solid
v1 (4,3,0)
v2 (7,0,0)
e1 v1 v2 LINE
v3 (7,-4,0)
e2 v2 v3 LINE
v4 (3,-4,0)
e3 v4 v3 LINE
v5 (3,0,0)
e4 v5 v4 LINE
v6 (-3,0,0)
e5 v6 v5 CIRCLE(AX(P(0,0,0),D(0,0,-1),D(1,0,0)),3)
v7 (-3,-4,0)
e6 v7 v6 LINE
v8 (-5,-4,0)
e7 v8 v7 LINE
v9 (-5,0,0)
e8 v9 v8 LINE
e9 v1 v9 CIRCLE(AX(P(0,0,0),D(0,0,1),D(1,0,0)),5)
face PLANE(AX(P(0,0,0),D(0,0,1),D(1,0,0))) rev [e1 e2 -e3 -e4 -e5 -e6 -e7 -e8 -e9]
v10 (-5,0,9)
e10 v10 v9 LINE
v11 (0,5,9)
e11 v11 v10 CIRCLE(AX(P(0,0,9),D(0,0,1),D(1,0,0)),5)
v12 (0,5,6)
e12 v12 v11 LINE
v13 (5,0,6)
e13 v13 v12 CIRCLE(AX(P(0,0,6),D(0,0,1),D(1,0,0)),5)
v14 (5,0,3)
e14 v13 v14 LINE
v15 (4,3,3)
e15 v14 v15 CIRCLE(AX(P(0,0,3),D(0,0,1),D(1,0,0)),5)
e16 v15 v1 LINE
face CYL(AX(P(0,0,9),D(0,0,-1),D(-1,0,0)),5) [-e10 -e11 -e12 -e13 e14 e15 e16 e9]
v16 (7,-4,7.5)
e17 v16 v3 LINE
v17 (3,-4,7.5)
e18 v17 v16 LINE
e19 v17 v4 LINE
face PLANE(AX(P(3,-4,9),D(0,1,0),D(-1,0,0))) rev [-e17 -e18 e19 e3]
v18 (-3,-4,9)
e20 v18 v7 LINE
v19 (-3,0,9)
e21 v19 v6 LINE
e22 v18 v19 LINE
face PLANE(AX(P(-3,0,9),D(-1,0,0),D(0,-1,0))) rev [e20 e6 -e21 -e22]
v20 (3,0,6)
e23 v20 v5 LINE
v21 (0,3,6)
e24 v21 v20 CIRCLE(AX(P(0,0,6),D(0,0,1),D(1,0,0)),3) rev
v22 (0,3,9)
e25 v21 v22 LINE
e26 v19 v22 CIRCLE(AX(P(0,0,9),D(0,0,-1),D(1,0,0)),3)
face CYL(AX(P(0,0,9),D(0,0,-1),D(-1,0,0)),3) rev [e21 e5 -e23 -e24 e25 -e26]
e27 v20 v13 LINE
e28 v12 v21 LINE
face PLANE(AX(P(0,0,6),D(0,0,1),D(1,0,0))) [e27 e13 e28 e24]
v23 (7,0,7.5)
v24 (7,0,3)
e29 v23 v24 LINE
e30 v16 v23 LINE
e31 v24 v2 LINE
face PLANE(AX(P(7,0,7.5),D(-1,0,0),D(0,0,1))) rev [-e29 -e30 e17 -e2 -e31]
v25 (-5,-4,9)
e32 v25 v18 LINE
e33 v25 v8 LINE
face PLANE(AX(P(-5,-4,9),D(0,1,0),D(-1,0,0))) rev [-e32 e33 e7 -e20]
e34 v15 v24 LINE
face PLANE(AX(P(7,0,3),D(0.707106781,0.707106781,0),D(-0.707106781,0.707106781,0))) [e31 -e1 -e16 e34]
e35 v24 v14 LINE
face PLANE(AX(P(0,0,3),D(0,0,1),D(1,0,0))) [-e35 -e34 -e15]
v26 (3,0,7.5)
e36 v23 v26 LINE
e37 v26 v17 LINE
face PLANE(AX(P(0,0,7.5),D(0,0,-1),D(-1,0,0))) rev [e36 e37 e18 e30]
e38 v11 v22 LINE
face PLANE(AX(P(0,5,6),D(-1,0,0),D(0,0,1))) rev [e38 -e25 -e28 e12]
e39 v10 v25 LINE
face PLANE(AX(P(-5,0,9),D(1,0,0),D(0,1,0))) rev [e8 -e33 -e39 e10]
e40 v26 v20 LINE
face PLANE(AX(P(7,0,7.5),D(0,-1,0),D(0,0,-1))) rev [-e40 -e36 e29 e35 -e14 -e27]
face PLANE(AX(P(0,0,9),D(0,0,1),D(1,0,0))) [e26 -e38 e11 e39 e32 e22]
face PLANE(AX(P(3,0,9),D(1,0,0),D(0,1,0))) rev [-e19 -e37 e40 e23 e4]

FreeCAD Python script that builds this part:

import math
import FreeCAD as App
import Part
import Sketcher
from FreeCAD import Vector
Q = App.Units.Quantity

doc = App.newDocument("Part")
body = doc.addObject("PartDesign::Body", "Body")

sketch1 = doc.addObject("Sketcher::SketchObject", "Sketch")
body.addObject(sketch1)
sketch1.AttachmentSupport = (doc.XY_Plane, [""])
sketch1.MapMode = "FlatFace"
sketch1.addGeometry(Part.LineSegment(Vector(3, 0, 0), Vector(3, -4, 0)), False)
sketch1.addGeometry(Part.LineSegment(Vector(3, -4, 0), Vector(5, -4, 0)), False)
sketch1.addGeometry(Part.LineSegment(Vector(5, -4, 0), Vector(5, 0, 0)), False)
sketch1.addGeometry(Part.ArcOfCircle(Part.Circle(Vector(0, 0, 0), Vector(0, 0, 1), 5), math.radians(0), math.radians(180)), False)
sketch1.addGeometry(Part.LineSegment(Vector(-5, 0, 0), Vector(-5, -4, 0)), False)
sketch1.addGeometry(Part.LineSegment(Vector(-5, -4, 0), Vector(-3, -4, 0)), False)
sketch1.addGeometry(Part.LineSegment(Vector(-3, -4, 0), Vector(-3, 0, 0)), False)
sketch1.addGeometry(Part.ArcOfCircle(Part.Circle(Vector(0, 0, 0), Vector(0, 0, 1), 3), math.radians(0), math.radians(180)), False)
sketch1.addConstraint(Sketcher.Constraint("Coincident", 0, 2, 1, 1))
sketch1.addConstraint(Sketcher.Constraint("Coincident", 1, 2, 2, 1))
sketch1.addConstraint(Sketcher.Constraint("Tangent", 2, 2, 3, 1))
sketch1.addConstraint(Sketcher.Constraint("Tangent", 3, 2, 4, 1))
sketch1.addConstraint(Sketcher.Constraint("Coincident", 4, 2, 5, 1))
sketch1.addConstraint(Sketcher.Constraint("Coincident", 5, 2, 6, 1))
sketch1.addConstraint(Sketcher.Constraint("Tangent", 6, 2, 7, 2))
sketch1.addConstraint(Sketcher.Constraint("Tangent", 7, 1, 0, 1))
sketch1.addConstraint(Sketcher.Constraint("Vertical", 0))
sketch1.addConstraint(Sketcher.Constraint("Horizontal", 1))
sketch1.addConstraint(Sketcher.Constraint("Vertical", 2))
sketch1.addConstraint(Sketcher.Constraint("Vertical", 4))
sketch1.addConstraint(Sketcher.Constraint("Horizontal", 5))
sketch1.addConstraint(Sketcher.Constraint("Vertical", 6))
sketch1.addConstraint(Sketcher.Constraint("Coincident", 3, 3, -1, 1))
sketch1.addConstraint(Sketcher.Constraint("Coincident", 7, 3, -1, 1))
sketch1.addConstraint(Sketcher.Constraint("Horizontal", 1, 2, 4, 2))
sketch1.addConstraint(Sketcher.Constraint("Radius", 3, Q("5 mm")))
sketch1.addConstraint(Sketcher.Constraint("Radius", 7, Q("3 mm")))
sketch1.addConstraint(Sketcher.Constraint("DistanceY", 0, 2, 0, 1, Q("4 mm")))
pad1 = doc.addObject("PartDesign::Pad", "Pad")
body.addObject(pad1)
pad1.Profile = sketch1
pad1.Length = 9

sketch2 = doc.addObject("Sketcher::SketchObject", "Sketch001")
body.addObject(sketch2)
sketch2.AttachmentSupport = (doc.XY_Plane, [""])
sketch2.MapMode = "FlatFace"
sketch2.AttachmentOffset = App.Placement(Vector(0, 0, 9), App.Rotation())
sketch2.addGeometry(Part.LineSegment(Vector(0, 5, 0), Vector(0, -4, 0)), False)
sketch2.addGeometry(Part.LineSegment(Vector(0, -4, 0), Vector(5, -4, 0)), False)
sketch2.addGeometry(Part.LineSegment(Vector(5, -4, 0), Vector(5, 5, 0)), False)
sketch2.addGeometry(Part.LineSegment(Vector(5, 5, 0), Vector(0, 5, 0)), False)
sketch2.addConstraint(Sketcher.Constraint("Coincident", 0, 2, 1, 1))
sketch2.addConstraint(Sketcher.Constraint("Coincident", 1, 2, 2, 1))
sketch2.addConstraint(Sketcher.Constraint("Coincident", 2, 2, 3, 1))
sketch2.addConstraint(Sketcher.Constraint("Coincident", 3, 2, 0, 1))
sketch2.addConstraint(Sketcher.Constraint("Vertical", 0))
sketch2.addConstraint(Sketcher.Constraint("Horizontal", 1))
sketch2.addConstraint(Sketcher.Constraint("Vertical", 2))
sketch2.addConstraint(Sketcher.Constraint("Horizontal", 3))
sketch2.addConstraint(Sketcher.Constraint("PointOnObject", 0, 2, -2))
sketch2.addConstraint(Sketcher.Constraint("DistanceX", 1, 1, 1, 2, Q("5 mm")))
sketch2.addConstraint(Sketcher.Constraint("DistanceY", 0, 2, 0, 1, Q("9 mm")))
sketch2.addConstraint(Sketcher.Constraint("DistanceY", 0, 2, -1, 1, Q("4 mm")))
pocket1 = doc.addObject("PartDesign::Pocket", "Pocket")
body.addObject(pocket1)
pocket1.Profile = sketch2
pocket1.Length = 3
body2 = doc.addObject("PartDesign::Body", "Body001")

sketch3 = doc.addObject("Sketcher::SketchObject", "Sketch002")
body2.addObject(sketch3)
sketch3.AttachmentSupport = (doc.getObject("XY_Plane001"), [""])
sketch3.MapMode = "FlatFace"
sketch3.addGeometry(Part.LineSegment(Vector(7, -4, 0), Vector(5, -4, 0)), False)
sketch3.addGeometry(Part.LineSegment(Vector(5, -4, 0), Vector(5, 0, 0)), False)
sketch3.addGeometry(Part.ArcOfCircle(Part.Circle(Vector(0, 0, 0), Vector(0, 0, 1), 5), math.radians(0), math.radians(37)), False)
sketch3.addGeometry(Part.LineSegment(Vector(4, 3, 0), Vector(7, 0, 0)), False)
sketch3.addGeometry(Part.LineSegment(Vector(7, 0, 0), Vector(7, -4, 0)), False)
sketch3.addConstraint(Sketcher.Constraint("Coincident", 0, 2, 1, 1))
sketch3.addConstraint(Sketcher.Constraint("Tangent", 1, 2, 2, 1))
sketch3.addConstraint(Sketcher.Constraint("Coincident", 2, 2, 3, 1))
sketch3.addConstraint(Sketcher.Constraint("Coincident", 3, 2, 4, 1))
sketch3.addConstraint(Sketcher.Constraint("Coincident", 4, 2, 0, 1))
sketch3.addConstraint(Sketcher.Constraint("Horizontal", 0))
sketch3.addConstraint(Sketcher.Constraint("Vertical", 1))
sketch3.addConstraint(Sketcher.Constraint("Vertical", 4))
sketch3.addConstraint(Sketcher.Constraint("Coincident", 2, 3, -1, 1))
sketch3.addConstraint(Sketcher.Constraint("PointOnObject", 3, 2, -1))
sketch3.addConstraint(Sketcher.Constraint("Radius", 2, Q("5 mm")))
sketch3.addConstraint(Sketcher.Constraint("DistanceX", 0, 2, 0, 1, Q("2 mm")))
sketch3.addConstraint(Sketcher.Constraint("DistanceY", 1, 1, 1, 2, Q("4 mm")))
sketch3.addConstraint(Sketcher.Constraint("Angle", 3, Q("-45 deg")))
pad2 = doc.addObject("PartDesign::Pad", "Pad001")
body2.addObject(pad2)
pad2.Profile = sketch3
pad2.Length = 3
doc.recompute()

boolean = doc.addObject("PartDesign::Boolean", "Boolean")
body.addObject(boolean)
boolean.Type = "Fuse"
boolean.addObjects([body2])

sketch4 = doc.addObject("Sketcher::SketchObject", "Sketch003")
body.addObject(sketch4)
sketch4.AttachmentSupport = (doc.XY_Plane, [""])
sketch4.MapMode = "FlatFace"
sketch4.AttachmentOffset = App.Placement(Vector(0, 0, 3), App.Rotation())
sketch4.addGeometry(Part.LineSegment(Vector(3, 0, 0), Vector(3, -4, 0)), False)
sketch4.addGeometry(Part.LineSegment(Vector(3, -4, 0), Vector(7, -4, 0)), False)
sketch4.addGeometry(Part.LineSegment(Vector(7, -4, 0), Vector(7, 0, 0)), False)
sketch4.addGeometry(Part.LineSegment(Vector(7, 0, 0), Vector(3, 0, 0)), False)
sketch4.addConstraint(Sketcher.Constraint("Coincident", 0, 2, 1, 1))
sketch4.addConstraint(Sketcher.Constraint("Coincident", 1, 2, 2, 1))
sketch4.addConstraint(Sketcher.Constraint("Coincident", 2, 2, 3, 1))
sketch4.addConstraint(Sketcher.Constraint("Coincident", 3, 2, 0, 1))
sketch4.addConstraint(Sketcher.Constraint("Vertical", 0))
sketch4.addConstraint(Sketcher.Constraint("Horizontal", 1))
sketch4.addConstraint(Sketcher.Constraint("Vertical", 2))
sketch4.addConstraint(Sketcher.Constraint("Horizontal", 3))
sketch4.addConstraint(Sketcher.Constraint("PointOnObject", 2, 2, -1))
sketch4.addConstraint(Sketcher.Constraint("Equal", 3, 0))
sketch4.addConstraint(Sketcher.Constraint("DistanceX", 1, 1, 1, 2, Q("4 mm")))
sketch4.addConstraint(Sketcher.Constraint("DistanceX", -1, 1, 0, 2, Q("3 mm")))
pad3 = doc.addObject("PartDesign::Pad", "Pad002")
body.addObject(pad3)
pad3.Profile = sketch4
pad3.Length = 4.5

doc.recompute()
